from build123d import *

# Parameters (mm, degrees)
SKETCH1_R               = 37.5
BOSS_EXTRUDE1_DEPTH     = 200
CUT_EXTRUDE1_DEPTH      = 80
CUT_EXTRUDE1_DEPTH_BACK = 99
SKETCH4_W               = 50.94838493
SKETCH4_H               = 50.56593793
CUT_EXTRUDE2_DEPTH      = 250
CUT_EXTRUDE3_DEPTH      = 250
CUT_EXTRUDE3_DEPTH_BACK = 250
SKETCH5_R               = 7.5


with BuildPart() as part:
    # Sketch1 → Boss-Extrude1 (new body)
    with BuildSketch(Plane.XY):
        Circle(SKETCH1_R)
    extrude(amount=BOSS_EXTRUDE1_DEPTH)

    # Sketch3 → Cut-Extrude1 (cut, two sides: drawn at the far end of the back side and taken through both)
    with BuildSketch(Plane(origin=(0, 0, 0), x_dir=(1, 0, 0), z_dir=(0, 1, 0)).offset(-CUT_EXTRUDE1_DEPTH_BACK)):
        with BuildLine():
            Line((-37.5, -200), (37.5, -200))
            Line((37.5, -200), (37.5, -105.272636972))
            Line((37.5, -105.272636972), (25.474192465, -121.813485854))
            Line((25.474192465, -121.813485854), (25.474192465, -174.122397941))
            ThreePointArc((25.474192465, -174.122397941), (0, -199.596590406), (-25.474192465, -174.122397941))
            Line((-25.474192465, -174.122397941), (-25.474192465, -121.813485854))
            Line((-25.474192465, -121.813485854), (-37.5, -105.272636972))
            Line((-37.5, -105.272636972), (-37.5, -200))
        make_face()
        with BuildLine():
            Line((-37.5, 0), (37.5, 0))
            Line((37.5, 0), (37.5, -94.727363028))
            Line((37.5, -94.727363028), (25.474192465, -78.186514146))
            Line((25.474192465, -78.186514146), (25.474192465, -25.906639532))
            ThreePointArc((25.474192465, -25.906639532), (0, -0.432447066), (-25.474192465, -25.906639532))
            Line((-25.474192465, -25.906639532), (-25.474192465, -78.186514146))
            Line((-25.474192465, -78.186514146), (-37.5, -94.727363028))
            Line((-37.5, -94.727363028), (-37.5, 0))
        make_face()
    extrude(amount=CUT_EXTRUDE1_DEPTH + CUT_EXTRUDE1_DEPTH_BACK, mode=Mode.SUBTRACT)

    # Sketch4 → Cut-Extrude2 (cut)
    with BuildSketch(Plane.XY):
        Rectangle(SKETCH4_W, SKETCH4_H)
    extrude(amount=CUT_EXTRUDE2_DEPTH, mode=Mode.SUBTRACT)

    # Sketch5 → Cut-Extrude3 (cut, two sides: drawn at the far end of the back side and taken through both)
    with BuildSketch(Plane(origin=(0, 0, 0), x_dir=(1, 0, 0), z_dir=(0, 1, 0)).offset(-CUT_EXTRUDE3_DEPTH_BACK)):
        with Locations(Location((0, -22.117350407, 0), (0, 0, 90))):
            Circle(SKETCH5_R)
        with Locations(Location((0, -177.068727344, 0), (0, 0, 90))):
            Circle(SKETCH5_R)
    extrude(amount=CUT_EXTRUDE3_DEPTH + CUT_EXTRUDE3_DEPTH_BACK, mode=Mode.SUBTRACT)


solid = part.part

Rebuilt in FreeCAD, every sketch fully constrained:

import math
import FreeCAD as App
import Part
import Sketcher

doc = App.newDocument("Part")
params = doc.addObject("Spreadsheet::Sheet", "Params")
for row, (alias, value) in enumerate([
    ("sketch1_diameter", "75 mm"),
    ("pad1_length", "200 mm"),
    ("sketch2_width", "75 mm"),
    ("pocket2_length", "250 mm"),
    ("sketch4_diameter", "15 mm"),
], start=1):
    params.set(f"A{row}", alias)
    params.set(f"B{row}", "=" + value)
    params.setAlias(f"B{row}", alias)

body = doc.addObject("PartDesign::Body", "Body")

# Sketch on XY plane
sketch1 = doc.addObject("Sketcher::SketchObject", "Sketch")
body.addObject(sketch1)
sketch1.AttachmentSupport = (doc.XY_Plane, [""])
sketch1.MapMode = "FlatFace"
sketch1.addGeometry(Part.Circle(App.Vector(0, 0, 0), App.Vector(0, 0, 1), 37.5), False)
sketch1.addConstraint(Sketcher.Constraint("Coincident", 0, 3, -1, 1))
sketch1.addConstraint(Sketcher.Constraint("Diameter", 0, 75.0))
sketch1.setExpression("Constraints[1]", "Params.sketch1_diameter")
pad1 = doc.addObject("PartDesign::Pad", "Pad")
body.addObject(pad1)
pad1.Profile = sketch1
pad1.setExpression("Length", "Params.pad1_length")

# Sketch on XZ plane
sketch2 = doc.addObject("Sketcher::SketchObject", "Sketch001")
body.addObject(sketch2)
sketch2.AttachmentSupport = (doc.XZ_Plane, [""])
sketch2.MapMode = "FlatFace"
sketch2.addGeometry(Part.LineSegment(App.Vector(-37.5, 200, 0), App.Vector(37.5, 200, 0)), False)
sketch2.addGeometry(Part.LineSegment(App.Vector(37.5, 200, 0), App.Vector(37.5, 105.272637, 0)), False)
sketch2.addGeometry(Part.LineSegment(App.Vector(37.5, 105.272637, 0), App.Vector(25.474192, 121.813486, 0)), False)
sketch2.addGeometry(Part.LineSegment(App.Vector(25.474192, 121.813486, 0), App.Vector(25.474192, 174.122398, 0)), False)
sketch2.addGeometry(Part.ArcOfCircle(Part.Circle(App.Vector(0, 174.122398, 0), App.Vector(0, 0, 1), 25.474192), math.radians(0), math.radians(180)), False)
sketch2.addGeometry(Part.LineSegment(App.Vector(-25.474192, 174.122398, 0), App.Vector(-25.474192, 121.813486, 0)), False)
sketch2.addGeometry(Part.LineSegment(App.Vector(-25.474192, 121.813486, 0), App.Vector(-37.5, 105.272637, 0)), False)
sketch2.addGeometry(Part.LineSegment(App.Vector(-37.5, 105.272637, 0), App.Vector(-37.5, 200, 0)), False)
sketch2.addGeometry(Part.LineSegment(App.Vector(37.5, 0, 0), App.Vector(-37.5, 0, 0)), False)
sketch2.addGeometry(Part.LineSegment(App.Vector(-37.5, 0, 0), App.Vector(-37.5, 94.727363, 0)), False)
sketch2.addGeometry(Part.LineSegment(App.Vector(-37.5, 94.727363, 0), App.Vector(-25.474192, 78.186514, 0)), False)
sketch2.addGeometry(Part.LineSegment(App.Vector(-25.474192, 78.186514, 0), App.Vector(-25.474192, 25.90664, 0)), False)
sketch2.addGeometry(Part.ArcOfCircle(Part.Circle(App.Vector(0, 25.90664, 0), App.Vector(0, 0, 1), 25.474192), math.radians(180), math.radians(360)), False)
sketch2.addGeometry(Part.LineSegment(App.Vector(25.474192, 25.90664, 0), App.Vector(25.474192, 78.186514, 0)), False)
sketch2.addGeometry(Part.LineSegment(App.Vector(25.474192, 78.186514, 0), App.Vector(37.5, 94.727363, 0)), False)
sketch2.addGeometry(Part.LineSegment(App.Vector(37.5, 94.727363, 0), App.Vector(37.5, 0, 0)), False)
sketch2.addConstraint(Sketcher.Constraint("Coincident", 0, 2, 1, 1))
sketch2.addConstraint(Sketcher.Constraint("Coincident", 1, 2, 2, 1))
sketch2.addConstraint(Sketcher.Constraint("Coincident", 2, 2, 3, 1))
sketch2.addConstraint(Sketcher.Constraint("Tangent", 3, 2, 4, 1))
sketch2.addConstraint(Sketcher.Constraint("Tangent", 4, 2, 5, 1))
sketch2.addConstraint(Sketcher.Constraint("Coincident", 5, 2, 6, 1))
sketch2.addConstraint(Sketcher.Constraint("Coincident", 6, 2, 7, 1))
sketch2.addConstraint(Sketcher.Constraint("Coincident", 7, 2, 0, 1))
sketch2.addConstraint(Sketcher.Constraint("Coincident", 8, 2, 9, 1))
sketch2.addConstraint(Sketcher.Constraint("Coincident", 9, 2, 10, 1))
sketch2.addConstraint(Sketcher.Constraint("Coincident", 10, 2, 11, 1))
sketch2.addConstraint(Sketcher.Constraint("Tangent", 11, 2, 12, 1))
sketch2.addConstraint(Sketcher.Constraint("Tangent", 12, 2, 13, 1))
sketch2.addConstraint(Sketcher.Constraint("Coincident", 13, 2, 14, 1))
sketch2.addConstraint(Sketcher.Constraint("Coincident", 14, 2, 15, 1))
sketch2.addConstraint(Sketcher.Constraint("Coincident", 15, 2, 8, 1))
sketch2.addConstraint(Sketcher.Constraint("Horizontal", 0))
sketch2.addConstraint(Sketcher.Constraint("Vertical", 1))
sketch2.addConstraint(Sketcher.Constraint("Vertical", 3))
sketch2.addConstraint(Sketcher.Constraint("Vertical", 5))
sketch2.addConstraint(Sketcher.Constraint("Vertical", 7))
sketch2.addConstraint(Sketcher.Constraint("Horizontal", 8))
sketch2.addConstraint(Sketcher.Constraint("Vertical", 9))
sketch2.addConstraint(Sketcher.Constraint("Vertical", 11))
sketch2.addConstraint(Sketcher.Constraint("Vertical", 13))
sketch2.addConstraint(Sketcher.Constraint("Vertical", 15))
sketch2.addConstraint(Sketcher.Constraint("Equal", 4, 12))
sketch2.addConstraint(Sketcher.Constraint("Symmetric", 8, 2, 15, 2, -1, 1))
sketch2.addConstraint(Sketcher.Constraint("Symmetric", 2, 2, 5, 2, -2))
sketch2.addConstraint(Sketcher.Constraint("Symmetric", 1, 2, 6, 2, -2))
sketch2.addConstraint(Sketcher.Constraint("Symmetric", 10, 2, 13, 2, -2))
sketch2.addConstraint(Sketcher.Constraint("Parallel", 2, 10))
sketch2.addConstraint(Sketcher.Constraint("Parallel", 6, 14))
sketch2.addConstraint(Sketcher.Constraint("Vertical", 7, 2, 8, 2))
sketch2.addConstraint(Sketcher.Constraint("Equal", 7, 9))
sketch2.addConstraint(Sketcher.Constraint("DistanceX", 0, 1, 0, 2, 75.0))
sketch2.addConstraint(Sketcher.Constraint("DistanceY", -1, 1, 0, 2, 200.0))
sketch2.addConstraint(Sketcher.Constraint("Radius", 4, 25.474192))
sketch2.addConstraint(Sketcher.Constraint("Distance", 2, 20.450421))
sketch2.addConstraint(Sketcher.Constraint("DistanceY", 1, 2, 1, 1, 94.727363))
sketch2.addConstraint(Sketcher.Constraint("DistanceY", 3, 1, 3, 2, 52.308912))
sketch2.addConstraint(Sketcher.Constraint("DistanceY", 11, 2, 11, 1, 52.279875))
sketch2.setExpression("Constraints[35]", "Params.sketch2_width")
pocket1 = doc.addObject("PartDesign::Pocket", "Pocket")
body.addObject(pocket1)
pocket1.Profile = sketch2
pocket1.Type = "ThroughAll"
pocket1.Midplane = True

# Sketch on XY plane
sketch3 = doc.addObject("Sketcher::SketchObject", "Sketch002")
body.addObject(sketch3)
sketch3.AttachmentSupport = (doc.XY_Plane, [""])
sketch3.MapMode = "FlatFace"
sketch3.addGeometry(Part.LineSegment(App.Vector(-25.474192, 25.282969, 0), App.Vector(-25.474192, -25.282969, 0)), False)
sketch3.addGeometry(Part.LineSegment(App.Vector(-25.474192, -25.282969, 0), App.Vector(25.474192, -25.282969, 0)), False)
sketch3.addGeometry(Part.LineSegment(App.Vector(25.474192, -25.282969, 0), App.Vector(25.474192, 25.282969, 0)), False)
sketch3.addGeometry(Part.LineSegment(App.Vector(25.474192, 25.282969, 0), App.Vector(-25.474192, 25.282969, 0)), False)
sketch3.addConstraint(Sketcher.Constraint("Coincident", 0, 2, 1, 1))
sketch3.addConstraint(Sketcher.Constraint("Coincident", 1, 2, 2, 1))
sketch3.addConstraint(Sketcher.Constraint("Coincident", 2, 2, 3, 1))
sketch3.addConstraint(Sketcher.Constraint("Coincident", 3, 2, 0, 1))
sketch3.addConstraint(Sketcher.Constraint("Vertical", 0))
sketch3.addConstraint(Sketcher.Constraint("Horizontal", 1))
sketch3.addConstraint(Sketcher.Constraint("Vertical", 2))
sketch3.addConstraint(Sketcher.Constraint("Horizontal", 3))
sketch3.addConstraint(Sketcher.Constraint("Symmetric", 0, 2, 2, 2, -1, 1))
sketch3.addConstraint(Sketcher.Constraint("DistanceX", 1, 1, 1, 2, 50.948385))
sketch3.addConstraint(Sketcher.Constraint("DistanceY", 0, 2, 0, 1, 50.565938))
pocket2 = doc.addObject("PartDesign::Pocket", "Pocket001")
body.addObject(pocket2)
pocket2.Profile = sketch3
pocket2.setExpression("Length", "Params.pocket2_length")
pocket2.Reversed = True

# Sketch on XZ plane
sketch4 = doc.addObject("Sketcher::SketchObject", "Sketch003")
body.addObject(sketch4)
sketch4.AttachmentSupport = (doc.XZ_Plane, [""])
sketch4.MapMode = "FlatFace"
sketch4.addGeometry(Part.Circle(App.Vector(0, 22.11735, 0), App.Vector(0, 0, 1), 7.5), False)
sketch4.addGeometry(Part.Circle(App.Vector(0, 177.068727, 0), App.Vector(0, 0, 1), 7.5), False)
sketch4.addConstraint(Sketcher.Constraint("Equal", 0, 1))
sketch4.addConstraint(Sketcher.Constraint("PointOnObject", 0, 3, -2))
sketch4.addConstraint(Sketcher.Constraint("PointOnObject", 1, 3, -2))
sketch4.addConstraint(Sketcher.Constraint("Diameter", 0, 15.0))
sketch4.addConstraint(Sketcher.Constraint("DistanceY", -1, 1, 0, 3, 22.11735))
sketch4.addConstraint(Sketcher.Constraint("DistanceY", -1, 1, 1, 3, 177.068727))
sketch4.setExpression("Constraints[3]", "Params.sketch4_diameter")
pocket3 = doc.addObject("PartDesign::Pocket", "Pocket002")
body.addObject(pocket3)
pocket3.Profile = sketch4
pocket3.Type = "ThroughAll"
pocket3.Midplane = True

doc.recompute()
